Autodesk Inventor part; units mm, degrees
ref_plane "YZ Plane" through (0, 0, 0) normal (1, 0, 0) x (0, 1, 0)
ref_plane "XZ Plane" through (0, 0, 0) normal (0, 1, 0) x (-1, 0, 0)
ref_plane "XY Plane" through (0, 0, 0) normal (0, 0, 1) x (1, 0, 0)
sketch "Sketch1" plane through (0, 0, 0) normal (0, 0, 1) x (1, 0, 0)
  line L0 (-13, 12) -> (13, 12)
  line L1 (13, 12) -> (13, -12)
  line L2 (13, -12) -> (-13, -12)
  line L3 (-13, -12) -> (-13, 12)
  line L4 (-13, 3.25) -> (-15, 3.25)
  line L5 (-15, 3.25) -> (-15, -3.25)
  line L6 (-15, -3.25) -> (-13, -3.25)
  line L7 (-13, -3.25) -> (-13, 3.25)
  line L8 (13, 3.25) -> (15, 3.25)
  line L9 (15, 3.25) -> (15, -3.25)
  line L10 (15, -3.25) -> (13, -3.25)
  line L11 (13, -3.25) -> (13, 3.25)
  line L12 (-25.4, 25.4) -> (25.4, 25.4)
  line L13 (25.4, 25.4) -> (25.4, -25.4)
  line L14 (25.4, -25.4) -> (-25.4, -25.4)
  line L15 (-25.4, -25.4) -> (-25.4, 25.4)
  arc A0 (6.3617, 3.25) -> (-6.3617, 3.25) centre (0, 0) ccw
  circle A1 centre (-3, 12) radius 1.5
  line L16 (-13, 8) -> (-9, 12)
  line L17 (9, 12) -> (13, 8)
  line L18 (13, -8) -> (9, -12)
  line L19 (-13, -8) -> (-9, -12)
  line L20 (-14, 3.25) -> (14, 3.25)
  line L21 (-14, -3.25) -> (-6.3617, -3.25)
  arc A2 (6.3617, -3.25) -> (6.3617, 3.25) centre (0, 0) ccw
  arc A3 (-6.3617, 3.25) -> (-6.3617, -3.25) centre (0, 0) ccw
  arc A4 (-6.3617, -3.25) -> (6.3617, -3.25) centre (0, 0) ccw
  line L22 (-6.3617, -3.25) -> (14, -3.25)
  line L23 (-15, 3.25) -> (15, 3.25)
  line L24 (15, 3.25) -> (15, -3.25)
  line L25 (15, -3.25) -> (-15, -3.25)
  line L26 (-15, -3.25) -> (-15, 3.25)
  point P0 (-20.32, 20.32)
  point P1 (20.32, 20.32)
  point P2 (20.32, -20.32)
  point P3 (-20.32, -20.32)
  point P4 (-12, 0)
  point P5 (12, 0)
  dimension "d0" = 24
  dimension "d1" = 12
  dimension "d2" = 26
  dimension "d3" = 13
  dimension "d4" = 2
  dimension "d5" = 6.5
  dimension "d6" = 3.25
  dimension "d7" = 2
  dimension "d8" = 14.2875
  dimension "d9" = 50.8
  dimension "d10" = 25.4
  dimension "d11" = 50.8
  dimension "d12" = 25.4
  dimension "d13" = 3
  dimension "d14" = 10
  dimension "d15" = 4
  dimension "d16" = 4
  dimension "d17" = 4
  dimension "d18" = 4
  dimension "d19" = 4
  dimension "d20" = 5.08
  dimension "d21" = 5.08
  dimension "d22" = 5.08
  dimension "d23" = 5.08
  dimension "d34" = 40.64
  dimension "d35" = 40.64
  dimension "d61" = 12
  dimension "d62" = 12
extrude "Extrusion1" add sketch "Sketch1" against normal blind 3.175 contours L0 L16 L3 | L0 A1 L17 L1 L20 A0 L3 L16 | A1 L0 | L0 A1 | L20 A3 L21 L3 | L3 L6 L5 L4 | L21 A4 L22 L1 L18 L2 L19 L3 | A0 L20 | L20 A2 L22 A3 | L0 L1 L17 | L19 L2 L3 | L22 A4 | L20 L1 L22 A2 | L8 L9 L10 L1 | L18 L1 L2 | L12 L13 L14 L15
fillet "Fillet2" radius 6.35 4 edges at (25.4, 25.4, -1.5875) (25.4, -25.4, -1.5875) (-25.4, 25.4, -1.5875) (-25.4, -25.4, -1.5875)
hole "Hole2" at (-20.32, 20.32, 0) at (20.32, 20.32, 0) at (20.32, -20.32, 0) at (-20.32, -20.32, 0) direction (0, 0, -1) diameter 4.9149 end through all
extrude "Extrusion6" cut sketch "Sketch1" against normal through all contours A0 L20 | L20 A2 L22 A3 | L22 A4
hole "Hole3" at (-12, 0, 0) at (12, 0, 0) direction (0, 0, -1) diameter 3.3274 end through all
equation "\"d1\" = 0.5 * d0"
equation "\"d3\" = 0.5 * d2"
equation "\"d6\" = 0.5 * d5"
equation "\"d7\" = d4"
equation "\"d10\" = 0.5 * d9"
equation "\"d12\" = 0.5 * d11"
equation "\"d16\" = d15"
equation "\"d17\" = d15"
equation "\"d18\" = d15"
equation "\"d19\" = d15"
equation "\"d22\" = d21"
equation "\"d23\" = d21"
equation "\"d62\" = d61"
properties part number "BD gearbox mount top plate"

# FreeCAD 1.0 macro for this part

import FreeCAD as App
import Part
import Sketcher
from FreeCAD import Vector
Q = App.Units.Quantity


def edges_at(feature, points):
    """Names of the edges that pass closest to the given points."""
    edges = feature.Shape.Edges
    near = lambda p: min(range(len(edges)), key=lambda i: edges[i].distToShape(Part.Vertex(*p))[0])
    return sorted({f"Edge{near(p) + 1}" for p in points})

doc = App.newDocument("Part")
body = doc.addObject("PartDesign::Body", "Body")

# Sketch on XY plane
sketch1 = body.newObject("Sketcher::SketchObject", "Sketch")
sketch1.AttachmentSupport = (doc.getObject("XY_Plane"), [""])
sketch1.MapMode = "FlatFace"
sketch1.addGeometry(Part.LineSegment(Vector(25, 25, 0), Vector(-25, 25, 0)), False)
sketch1.addGeometry(Part.LineSegment(Vector(-25, 25, 0), Vector(-25, -25, 0)), False)
sketch1.addGeometry(Part.LineSegment(Vector(-25, -25, 0), Vector(25, -25, 0)), False)
sketch1.addGeometry(Part.LineSegment(Vector(25, -25, 0), Vector(25, 25, 0)), False)
sketch1.addConstraint(Sketcher.Constraint("Coincident", 0, 2, 1, 1))
sketch1.addConstraint(Sketcher.Constraint("Coincident", 1, 2, 2, 1))
sketch1.addConstraint(Sketcher.Constraint("Coincident", 2, 2, 3, 1))
sketch1.addConstraint(Sketcher.Constraint("Coincident", 3, 2, 0, 1))
sketch1.addConstraint(Sketcher.Constraint("Horizontal", 0))
sketch1.addConstraint(Sketcher.Constraint("Vertical", 1))
sketch1.addConstraint(Sketcher.Constraint("Horizontal", 2))
sketch1.addConstraint(Sketcher.Constraint("Vertical", 3))
sketch1.addConstraint(Sketcher.Constraint("Symmetric", 0, 2, 2, 2, -1, 1))
sketch1.addConstraint(Sketcher.Constraint("Equal", 2, 1))
sketch1.addConstraint(Sketcher.Constraint("DistanceX", 0, 2, 0, 1, Q("2 in")))
pad1 = body.newObject("PartDesign::Pad", "Pad")
pad1.Profile = sketch1
pad1.Length = Q("0.125 in")
pad1.Reversed = True
doc.recompute()

fillet = body.newObject("PartDesign::Fillet", "Fillet")
fillet.Base = (pad1, edges_at(pad1, [
    (25.4, 25.4, -1.587),
    (25.4, -25.4, -1.587),
    (-25.4, 25.4, -1.587),
    (-25.4, -25.4, -1.587),
]))
fillet.Radius = Q("0.25 in")

# Sketch on XY plane
sketch2 = body.newObject("Sketcher::SketchObject", "Sketch001")
sketch2.AttachmentSupport = (doc.getObject("XY_Plane"), [""])
sketch2.MapMode = "FlatFace"
sketch2.addGeometry(Part.Circle(Vector(-20.3, 20.3, 0), Vector(0, 0, 1), 2.5), False)
sketch2.addGeometry(Part.Circle(Vector(20.3, 20.3, 0), Vector(0, 0, 1), 2.5), False)
sketch2.addGeometry(Part.Circle(Vector(20.3, -20.3, 0), Vector(0, 0, 1), 2.5), False)
sketch2.addGeometry(Part.Circle(Vector(-20.3, -20.3, 0), Vector(0, 0, 1), 2.5), False)
sketch2.addConstraint(Sketcher.Constraint("Equal", 0, 1))
sketch2.addConstraint(Sketcher.Constraint("Equal", 1, 2))
sketch2.addConstraint(Sketcher.Constraint("Equal", 2, 3))
sketch2.addConstraint(Sketcher.Constraint("Symmetric", 0, 3, 2, 3, -1, 1))
sketch2.addConstraint(Sketcher.Constraint("Symmetric", 1, 3, 3, 3, -1, 1))
sketch2.addConstraint(Sketcher.Constraint("Symmetric", 0, 3, 1, 3, -2))
sketch2.addConstraint(Sketcher.Constraint("Diameter", 0, Q("0.1935 in")))
sketch2.addConstraint(Sketcher.Constraint("DistanceX", 0, 3, -1, 1, Q("0.8 in")))
sketch2.addConstraint(Sketcher.Constraint("DistanceY", -1, 1, 0, 3, Q("0.8 in")))
doc.recompute()
hole = body.newObject("PartDesign::Hole", "Hole")
hole.Profile = sketch2
hole.ThreadType = "None"
hole.Diameter = Q("0.1935 in")
hole.DepthType = "ThroughAll"

# Sketch on XY plane
sketch3 = body.newObject("Sketcher::SketchObject", "Sketch002")
sketch3.AttachmentSupport = (doc.getObject("XY_Plane"), [""])
sketch3.MapMode = "FlatFace"
sketch3.addGeometry(Part.Circle(Vector(0, 0, 0), Vector(0, 0, 1), 7), False)
sketch3.addConstraint(Sketcher.Constraint("Coincident", 0, 3, -1, 1))
sketch3.addConstraint(Sketcher.Constraint("Diameter", 0, Q("0.5625 in")))
pocket1 = body.newObject("PartDesign::Pocket", "Pocket")
pocket1.Profile = sketch3
pocket1.Type = "ThroughAll"

# Sketch on XY plane
sketch4 = body.newObject("Sketcher::SketchObject", "Sketch003")
sketch4.AttachmentSupport = (doc.getObject("XY_Plane"), [""])
sketch4.MapMode = "FlatFace"
sketch4.addGeometry(Part.Circle(Vector(-12, 0, 0), Vector(0, 0, 1), 1.7), False)
sketch4.addGeometry(Part.Circle(Vector(12, 0, 0), Vector(0, 0, 1), 1.7), False)
sketch4.addConstraint(Sketcher.Constraint("Equal", 0, 1))
sketch4.addConstraint(Sketcher.Constraint("Symmetric", 0, 3, 1, 3, -1, 1))
sketch4.addConstraint(Sketcher.Constraint("PointOnObject", 0, 3, -1))
sketch4.addConstraint(Sketcher.Constraint("Diameter", 0, Q("0.131 in")))
sketch4.addConstraint(Sketcher.Constraint("DistanceX", 0, 3, -1, 1, Q("12 mm")))
doc.recompute()
hole2 = body.newObject("PartDesign::Hole", "Hole001")
hole2.Profile = sketch4
hole2.ThreadType = "None"
hole2.Diameter = Q("0.131 in")
hole2.DepthType = "ThroughAll"

doc.recompute()
